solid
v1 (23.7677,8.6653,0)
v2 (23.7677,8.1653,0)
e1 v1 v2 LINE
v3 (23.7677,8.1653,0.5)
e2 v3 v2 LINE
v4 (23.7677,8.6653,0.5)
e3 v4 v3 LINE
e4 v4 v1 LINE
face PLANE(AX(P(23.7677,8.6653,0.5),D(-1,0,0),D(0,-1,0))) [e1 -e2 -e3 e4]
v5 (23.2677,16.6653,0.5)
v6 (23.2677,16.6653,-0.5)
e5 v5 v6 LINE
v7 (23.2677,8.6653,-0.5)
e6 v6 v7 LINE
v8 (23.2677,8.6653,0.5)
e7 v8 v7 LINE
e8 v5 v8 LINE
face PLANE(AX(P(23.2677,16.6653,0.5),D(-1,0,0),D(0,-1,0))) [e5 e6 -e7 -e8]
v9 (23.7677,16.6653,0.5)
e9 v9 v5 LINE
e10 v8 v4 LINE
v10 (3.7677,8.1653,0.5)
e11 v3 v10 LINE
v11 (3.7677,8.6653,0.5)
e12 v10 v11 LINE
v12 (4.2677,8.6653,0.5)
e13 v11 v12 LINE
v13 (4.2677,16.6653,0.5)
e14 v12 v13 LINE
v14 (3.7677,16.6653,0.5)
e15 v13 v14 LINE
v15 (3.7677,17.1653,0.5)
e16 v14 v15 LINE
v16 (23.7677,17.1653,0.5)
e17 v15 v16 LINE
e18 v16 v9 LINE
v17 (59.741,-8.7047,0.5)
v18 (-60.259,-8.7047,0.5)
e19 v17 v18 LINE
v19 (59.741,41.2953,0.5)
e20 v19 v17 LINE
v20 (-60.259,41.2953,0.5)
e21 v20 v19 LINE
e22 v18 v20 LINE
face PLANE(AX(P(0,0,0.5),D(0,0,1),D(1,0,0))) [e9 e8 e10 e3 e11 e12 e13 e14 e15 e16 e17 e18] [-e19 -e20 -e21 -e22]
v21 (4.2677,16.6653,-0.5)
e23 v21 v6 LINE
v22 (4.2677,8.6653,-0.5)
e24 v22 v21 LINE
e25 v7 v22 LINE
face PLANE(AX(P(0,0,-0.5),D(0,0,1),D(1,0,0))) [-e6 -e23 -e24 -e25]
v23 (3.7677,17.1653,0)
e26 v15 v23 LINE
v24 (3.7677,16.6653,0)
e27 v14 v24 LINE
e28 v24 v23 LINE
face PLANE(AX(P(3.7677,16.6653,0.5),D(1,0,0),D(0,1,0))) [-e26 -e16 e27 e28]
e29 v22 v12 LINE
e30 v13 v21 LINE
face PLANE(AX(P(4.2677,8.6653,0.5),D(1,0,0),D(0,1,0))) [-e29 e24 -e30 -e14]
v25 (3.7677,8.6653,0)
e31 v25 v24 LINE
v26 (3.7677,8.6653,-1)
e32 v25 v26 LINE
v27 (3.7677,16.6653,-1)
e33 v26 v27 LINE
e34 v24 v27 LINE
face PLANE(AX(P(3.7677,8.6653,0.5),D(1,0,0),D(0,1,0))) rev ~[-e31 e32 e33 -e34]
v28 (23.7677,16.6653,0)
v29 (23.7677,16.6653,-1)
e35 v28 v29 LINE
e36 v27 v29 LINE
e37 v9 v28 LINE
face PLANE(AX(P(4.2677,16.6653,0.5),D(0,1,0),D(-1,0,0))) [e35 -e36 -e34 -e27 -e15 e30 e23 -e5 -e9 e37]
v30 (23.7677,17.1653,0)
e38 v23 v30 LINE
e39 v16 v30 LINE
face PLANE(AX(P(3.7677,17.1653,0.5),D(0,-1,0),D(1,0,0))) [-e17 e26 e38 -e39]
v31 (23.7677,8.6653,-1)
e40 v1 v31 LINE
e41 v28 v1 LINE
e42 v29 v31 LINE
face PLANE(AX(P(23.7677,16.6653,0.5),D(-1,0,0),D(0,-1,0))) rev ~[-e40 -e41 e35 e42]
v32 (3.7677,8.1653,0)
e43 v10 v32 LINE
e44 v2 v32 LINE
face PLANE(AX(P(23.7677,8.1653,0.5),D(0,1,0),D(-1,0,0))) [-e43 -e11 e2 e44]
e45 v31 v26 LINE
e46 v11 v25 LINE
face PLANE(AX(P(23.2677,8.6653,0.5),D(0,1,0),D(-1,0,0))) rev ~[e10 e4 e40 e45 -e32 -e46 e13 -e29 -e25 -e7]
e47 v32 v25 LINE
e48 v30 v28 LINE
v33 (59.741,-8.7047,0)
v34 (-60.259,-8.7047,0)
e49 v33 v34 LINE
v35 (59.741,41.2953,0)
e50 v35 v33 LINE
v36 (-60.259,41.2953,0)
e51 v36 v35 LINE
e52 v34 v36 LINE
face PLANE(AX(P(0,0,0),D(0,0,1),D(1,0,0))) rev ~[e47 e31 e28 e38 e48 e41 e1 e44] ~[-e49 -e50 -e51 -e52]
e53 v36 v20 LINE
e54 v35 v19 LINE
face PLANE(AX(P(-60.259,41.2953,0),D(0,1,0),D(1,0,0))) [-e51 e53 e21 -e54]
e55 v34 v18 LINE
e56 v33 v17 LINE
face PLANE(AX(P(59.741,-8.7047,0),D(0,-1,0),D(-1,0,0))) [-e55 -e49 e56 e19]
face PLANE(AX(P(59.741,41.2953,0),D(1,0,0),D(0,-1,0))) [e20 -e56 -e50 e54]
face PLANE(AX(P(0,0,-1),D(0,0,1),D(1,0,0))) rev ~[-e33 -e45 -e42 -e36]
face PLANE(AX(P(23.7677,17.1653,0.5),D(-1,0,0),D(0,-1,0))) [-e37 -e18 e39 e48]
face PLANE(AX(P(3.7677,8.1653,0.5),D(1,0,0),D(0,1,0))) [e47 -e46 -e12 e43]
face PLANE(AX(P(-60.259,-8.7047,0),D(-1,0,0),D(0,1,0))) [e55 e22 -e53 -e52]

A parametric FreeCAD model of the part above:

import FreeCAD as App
import Part
import Sketcher

doc = App.newDocument("Part")
body = doc.addObject("PartDesign::Body", "Body")

sketch1 = doc.addObject("Sketcher::SketchObject", "Sketch")
body.addObject(sketch1)
sketch1.AttachmentSupport = (doc.XY_Plane, [""])
sketch1.MapMode = "FlatFace"
sketch1.addGeometry(Part.LineSegment(App.Vector(59.741, 41.2953, 0), App.Vector(-60.259, 41.2953, 0)), False)
sketch1.addGeometry(Part.LineSegment(App.Vector(-60.259, 41.2953, 0), App.Vector(-60.259, -8.7047, 0)), False)
sketch1.addGeometry(Part.LineSegment(App.Vector(-60.259, -8.7047, 0), App.Vector(59.741, -8.7047, 0)), False)
sketch1.addGeometry(Part.LineSegment(App.Vector(59.741, -8.7047, 0), App.Vector(59.741, 41.2953, 0)), False)
sketch1.addConstraint(Sketcher.Constraint("Coincident", 0, 2, 1, 1))
sketch1.addConstraint(Sketcher.Constraint("Coincident", 1, 2, 2, 1))
sketch1.addConstraint(Sketcher.Constraint("Coincident", 2, 2, 3, 1))
sketch1.addConstraint(Sketcher.Constraint("Coincident", 3, 2, 0, 1))
sketch1.addConstraint(Sketcher.Constraint("Horizontal", 0))
sketch1.addConstraint(Sketcher.Constraint("Vertical", 1))
sketch1.addConstraint(Sketcher.Constraint("Horizontal", 2))
sketch1.addConstraint(Sketcher.Constraint("Vertical", 3))
sketch1.addConstraint(Sketcher.Constraint("DistanceX", 0, 2, 0, 1, 120.0))
sketch1.addConstraint(Sketcher.Constraint("DistanceY", 1, 2, 1, 1, 50.0))
sketch1.addConstraint(Sketcher.Constraint("DistanceX", 0, 2, -1, 1, 60.259))
sketch1.addConstraint(Sketcher.Constraint("DistanceY", -1, 1, 0, 2, 41.2953))
pad1 = doc.addObject("PartDesign::Pad", "Pad")
body.addObject(pad1)
pad1.Profile = sketch1
pad1.Length = 0.5

sketch2 = doc.addObject("Sketcher::SketchObject", "Sketch001")
body.addObject(sketch2)
sketch2.AttachmentSupport = (doc.XY_Plane, [""])
sketch2.MapMode = "FlatFace"
sketch2.AttachmentOffset = App.Placement(App.Vector(0, 0, 0.5), App.Rotation())
sketch2.addGeometry(Part.LineSegment(App.Vector(23.7677, 16.6653, 0), App.Vector(3.7677, 16.6653, 0)), False)
sketch2.addGeometry(Part.LineSegment(App.Vector(3.7677, 16.6653, 0), App.Vector(3.7677, 8.6653, 0)), False)
sketch2.addGeometry(Part.LineSegment(App.Vector(3.7677, 8.6653, 0), App.Vector(23.7677, 8.6653, 0)), False)
sketch2.addGeometry(Part.LineSegment(App.Vector(23.7677, 8.6653, 0), App.Vector(23.7677, 16.6653, 0)), False)
sketch2.addConstraint(Sketcher.Constraint("Coincident", 0, 2, 1, 1))
sketch2.addConstraint(Sketcher.Constraint("Coincident", 1, 2, 2, 1))
sketch2.addConstraint(Sketcher.Constraint("Coincident", 2, 2, 3, 1))
sketch2.addConstraint(Sketcher.Constraint("Coincident", 3, 2, 0, 1))
sketch2.addConstraint(Sketcher.Constraint("Horizontal", 0))
sketch2.addConstraint(Sketcher.Constraint("Vertical", 1))
sketch2.addConstraint(Sketcher.Constraint("Horizontal", 2))
sketch2.addConstraint(Sketcher.Constraint("Vertical", 3))
sketch2.addConstraint(Sketcher.Constraint("DistanceX", 0, 2, 0, 1, 20.0))
sketch2.addConstraint(Sketcher.Constraint("DistanceY", 1, 2, 1, 1, 8.0))
sketch2.addConstraint(Sketcher.Constraint("DistanceX", -1, 1, 0, 2, 3.7677))
sketch2.addConstraint(Sketcher.Constraint("DistanceY", -1, 1, 0, 2, 16.6653))
pad2 = doc.addObject("PartDesign::Pad", "Pad001")
body.addObject(pad2)
pad2.Profile = sketch2
pad2.Length = 1.5
pad2.Reversed = True

sketch3 = doc.addObject("Sketcher::SketchObject", "Sketch002")
body.addObject(sketch3)
sketch3.AttachmentSupport = (doc.XY_Plane, [""])
sketch3.MapMode = "FlatFace"
sketch3.AttachmentOffset = App.Placement(App.Vector(0, 0, 0.5), App.Rotation())
sketch3.addGeometry(Part.LineSegment(App.Vector(23.2677, 16.6653, 0), App.Vector(4.2677, 16.6653, 0)), False)
sketch3.addGeometry(Part.LineSegment(App.Vector(4.2677, 16.6653, 0), App.Vector(4.2677, 8.6653, 0)), False)
sketch3.addGeometry(Part.LineSegment(App.Vector(4.2677, 8.6653, 0), App.Vector(23.2677, 8.6653, 0)), False)
sketch3.addGeometry(Part.LineSegment(App.Vector(23.2677, 8.6653, 0), App.Vector(23.2677, 16.6653, 0)), False)
sketch3.addConstraint(Sketcher.Constraint("Coincident", 0, 2, 1, 1))
sketch3.addConstraint(Sketcher.Constraint("Coincident", 1, 2, 2, 1))
sketch3.addConstraint(Sketcher.Constraint("Coincident", 2, 2, 3, 1))
sketch3.addConstraint(Sketcher.Constraint("Coincident", 3, 2, 0, 1))
sketch3.addConstraint(Sketcher.Constraint("Horizontal", 0))
sketch3.addConstraint(Sketcher.Constraint("Vertical", 1))
sketch3.addConstraint(Sketcher.Constraint("Horizontal", 2))
sketch3.addConstraint(Sketcher.Constraint("Vertical", 3))
sketch3.addConstraint(Sketcher.Constraint("DistanceX", 0, 2, 0, 1, 19.0))
sketch3.addConstraint(Sketcher.Constraint("DistanceY", 1, 2, 1, 1, 8.0))
sketch3.addConstraint(Sketcher.Constraint("DistanceX", -1, 1, 0, 2, 4.2677))
sketch3.addConstraint(Sketcher.Constraint("DistanceY", -1, 1, 0, 2, 16.6653))
pocket1 = doc.addObject("PartDesign::Pocket", "Pocket")
body.addObject(pocket1)
pocket1.Profile = sketch3
pocket1.Length = 1

sketch4 = doc.addObject("Sketcher::SketchObject", "Sketch003")
body.addObject(sketch4)
sketch4.AttachmentSupport = (doc.XY_Plane, [""])
sketch4.MapMode = "FlatFace"
sketch4.AttachmentOffset = App.Placement(App.Vector(0, 0, 0.5), App.Rotation())
sketch4.addGeometry(Part.LineSegment(App.Vector(3.7677, 16.6653, 0), App.Vector(23.7677, 16.6653, 0)), False)
sketch4.addGeometry(Part.LineSegment(App.Vector(23.7677, 16.6653, 0), App.Vector(23.7677, 17.1653, 0)), False)
sketch4.addGeometry(Part.LineSegment(App.Vector(23.7677, 17.1653, 0), App.Vector(3.7677, 17.1653, 0)), False)
sketch4.addGeometry(Part.LineSegment(App.Vector(3.7677, 17.1653, 0), App.Vector(3.7677, 16.6653, 0)), False)
sketch4.addGeometry(Part.LineSegment(App.Vector(23.7677, 8.6653, 0), App.Vector(3.7677, 8.6653, 0)), False)
sketch4.addGeometry(Part.LineSegment(App.Vector(3.7677, 8.6653, 0), App.Vector(3.7677, 8.1653, 0)), False)
sketch4.addGeometry(Part.LineSegment(App.Vector(3.7677, 8.1653, 0), App.Vector(23.7677, 8.1653, 0)), False)
sketch4.addGeometry(Part.LineSegment(App.Vector(23.7677, 8.1653, 0), App.Vector(23.7677, 8.6653, 0)), False)
sketch4.addConstraint(Sketcher.Constraint("Coincident", 0, 2, 1, 1))
sketch4.addConstraint(Sketcher.Constraint("Coincident", 1, 2, 2, 1))
sketch4.addConstraint(Sketcher.Constraint("Coincident", 2, 2, 3, 1))
sketch4.addConstraint(Sketcher.Constraint("Coincident", 3, 2, 0, 1))
sketch4.addConstraint(Sketcher.Constraint("Coincident", 4, 2, 5, 1))
sketch4.addConstraint(Sketcher.Constraint("Coincident", 5, 2, 6, 1))
sketch4.addConstraint(Sketcher.Constraint("Coincident", 6, 2, 7, 1))
sketch4.addConstraint(Sketcher.Constraint("Coincident", 7, 2, 4, 1))
sketch4.addConstraint(Sketcher.Constraint("Horizontal", 0))
sketch4.addConstraint(Sketcher.Constraint("Vertical", 1))
sketch4.addConstraint(Sketcher.Constraint("Horizontal", 2))
sketch4.addConstraint(Sketcher.Constraint("Vertical", 3))
sketch4.addConstraint(Sketcher.Constraint("Horizontal", 4))
sketch4.addConstraint(Sketcher.Constraint("Vertical", 5))
sketch4.addConstraint(Sketcher.Constraint("Horizontal", 6))
sketch4.addConstraint(Sketcher.Constraint("Vertical", 7))
sketch4.addConstraint(Sketcher.Constraint("Vertical", 3, 2, 4, 2))
sketch4.addConstraint(Sketcher.Constraint("Vertical", 1, 2, 6, 2))
sketch4.addConstraint(Sketcher.Constraint("Equal", 3, 5))
sketch4.addConstraint(Sketcher.Constraint("DistanceY", 1, 1, 1, 2, 0.5))
sketch4.addConstraint(Sketcher.Constraint("DistanceX", 0, 1, 0, 2, 20.0))
sketch4.addConstraint(Sketcher.Constraint("DistanceY", 4, 2, 3, 2, 8.0))
sketch4.addConstraint(Sketcher.Constraint("DistanceX", -1, 1, 0, 2, 23.7677))
sketch4.addConstraint(Sketcher.Constraint("DistanceY", -1, 1, 0, 2, 16.6653))
pocket2 = doc.addObject("PartDesign::Pocket", "Pocket001")
body.addObject(pocket2)
pocket2.Profile = sketch4
pocket2.Length = 0.5

doc.recompute()
